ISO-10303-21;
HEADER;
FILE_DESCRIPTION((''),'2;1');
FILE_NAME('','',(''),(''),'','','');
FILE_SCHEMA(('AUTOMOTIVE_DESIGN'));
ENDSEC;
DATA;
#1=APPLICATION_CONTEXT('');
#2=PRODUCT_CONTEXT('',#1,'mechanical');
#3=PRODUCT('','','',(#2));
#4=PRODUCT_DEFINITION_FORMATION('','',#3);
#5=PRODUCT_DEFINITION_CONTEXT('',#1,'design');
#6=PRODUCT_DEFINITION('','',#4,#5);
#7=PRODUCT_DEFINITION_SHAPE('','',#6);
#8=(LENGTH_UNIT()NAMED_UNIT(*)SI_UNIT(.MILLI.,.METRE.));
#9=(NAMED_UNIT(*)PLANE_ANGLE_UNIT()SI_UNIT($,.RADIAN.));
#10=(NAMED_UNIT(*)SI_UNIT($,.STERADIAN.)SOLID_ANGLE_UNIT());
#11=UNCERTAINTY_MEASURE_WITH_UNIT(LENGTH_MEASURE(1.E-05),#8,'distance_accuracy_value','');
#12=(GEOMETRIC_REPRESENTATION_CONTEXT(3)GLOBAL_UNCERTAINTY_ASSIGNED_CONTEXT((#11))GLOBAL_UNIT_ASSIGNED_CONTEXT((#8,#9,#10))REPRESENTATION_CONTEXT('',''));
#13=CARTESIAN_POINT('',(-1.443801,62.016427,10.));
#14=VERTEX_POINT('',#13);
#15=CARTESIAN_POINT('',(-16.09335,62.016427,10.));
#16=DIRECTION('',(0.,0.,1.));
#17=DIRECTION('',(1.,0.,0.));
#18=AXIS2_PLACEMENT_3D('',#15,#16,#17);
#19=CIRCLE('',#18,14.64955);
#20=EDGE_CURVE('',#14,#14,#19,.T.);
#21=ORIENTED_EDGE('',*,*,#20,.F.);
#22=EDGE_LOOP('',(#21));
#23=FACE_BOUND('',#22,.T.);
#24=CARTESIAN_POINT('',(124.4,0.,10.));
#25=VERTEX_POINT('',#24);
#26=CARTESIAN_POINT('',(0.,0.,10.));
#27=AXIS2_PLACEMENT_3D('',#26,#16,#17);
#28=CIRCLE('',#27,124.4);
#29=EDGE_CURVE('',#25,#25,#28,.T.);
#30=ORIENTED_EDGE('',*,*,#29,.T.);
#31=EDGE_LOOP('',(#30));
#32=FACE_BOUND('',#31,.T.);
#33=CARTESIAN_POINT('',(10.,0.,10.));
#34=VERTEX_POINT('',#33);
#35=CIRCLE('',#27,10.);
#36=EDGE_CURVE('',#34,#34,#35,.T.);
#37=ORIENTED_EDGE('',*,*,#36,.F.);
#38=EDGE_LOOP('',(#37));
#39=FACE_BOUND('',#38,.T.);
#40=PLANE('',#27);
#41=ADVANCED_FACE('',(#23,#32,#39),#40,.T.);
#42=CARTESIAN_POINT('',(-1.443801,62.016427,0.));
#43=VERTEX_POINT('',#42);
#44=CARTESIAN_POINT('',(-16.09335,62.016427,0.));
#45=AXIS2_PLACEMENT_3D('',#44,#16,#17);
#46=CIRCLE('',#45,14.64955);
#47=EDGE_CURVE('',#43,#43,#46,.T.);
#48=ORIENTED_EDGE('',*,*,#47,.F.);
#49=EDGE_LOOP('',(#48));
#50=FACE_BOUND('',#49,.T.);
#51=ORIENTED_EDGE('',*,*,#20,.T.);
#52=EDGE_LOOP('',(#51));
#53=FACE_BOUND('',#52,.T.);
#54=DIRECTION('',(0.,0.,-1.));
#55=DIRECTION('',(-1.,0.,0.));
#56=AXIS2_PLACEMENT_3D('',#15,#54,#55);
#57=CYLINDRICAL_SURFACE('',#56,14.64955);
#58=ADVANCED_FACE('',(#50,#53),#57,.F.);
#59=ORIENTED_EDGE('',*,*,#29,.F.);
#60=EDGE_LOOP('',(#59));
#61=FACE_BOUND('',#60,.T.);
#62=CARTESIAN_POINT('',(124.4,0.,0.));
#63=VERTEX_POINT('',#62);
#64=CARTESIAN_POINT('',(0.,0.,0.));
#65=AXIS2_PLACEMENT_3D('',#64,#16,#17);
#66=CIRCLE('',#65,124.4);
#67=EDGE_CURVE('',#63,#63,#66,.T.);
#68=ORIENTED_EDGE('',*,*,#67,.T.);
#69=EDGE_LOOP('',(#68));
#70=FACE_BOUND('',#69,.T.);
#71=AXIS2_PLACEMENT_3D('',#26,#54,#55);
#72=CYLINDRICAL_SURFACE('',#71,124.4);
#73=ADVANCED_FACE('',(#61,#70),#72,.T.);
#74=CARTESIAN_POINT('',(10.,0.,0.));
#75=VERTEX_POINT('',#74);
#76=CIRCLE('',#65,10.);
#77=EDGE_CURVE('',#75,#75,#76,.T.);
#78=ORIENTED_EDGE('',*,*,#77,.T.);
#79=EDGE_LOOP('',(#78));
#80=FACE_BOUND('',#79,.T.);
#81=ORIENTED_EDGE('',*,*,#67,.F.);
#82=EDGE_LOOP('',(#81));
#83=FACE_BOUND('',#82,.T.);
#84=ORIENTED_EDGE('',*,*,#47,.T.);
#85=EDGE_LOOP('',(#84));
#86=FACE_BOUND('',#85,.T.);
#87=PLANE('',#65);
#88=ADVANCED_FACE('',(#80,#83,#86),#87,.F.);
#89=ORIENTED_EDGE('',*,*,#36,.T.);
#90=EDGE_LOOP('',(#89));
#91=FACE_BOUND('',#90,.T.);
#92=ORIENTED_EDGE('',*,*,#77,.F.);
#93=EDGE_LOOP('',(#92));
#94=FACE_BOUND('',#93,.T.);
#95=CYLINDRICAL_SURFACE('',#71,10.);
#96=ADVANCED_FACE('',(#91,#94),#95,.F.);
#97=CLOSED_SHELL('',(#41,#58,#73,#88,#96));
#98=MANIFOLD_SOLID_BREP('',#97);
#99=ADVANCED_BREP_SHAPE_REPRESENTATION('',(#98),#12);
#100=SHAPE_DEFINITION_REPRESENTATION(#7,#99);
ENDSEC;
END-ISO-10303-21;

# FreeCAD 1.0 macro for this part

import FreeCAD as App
import Part
import Sketcher

V = App.Vector

doc = App.newDocument("Part")
body = doc.addObject("PartDesign::Body", "Body")

sketch1 = body.newObject("Sketcher::SketchObject", "Sketch")
sketch1.AttachmentSupport = (doc.getObject("XY_Plane"), [""])
sketch1.MapMode = "FlatFace"
sketch1.addGeometry([
    Part.Circle(V(0, 0, 0), V(0, 0, 1), 124),
    Part.Circle(V(0, 0, 0), V(0, 0, 1), 10),
    Part.Circle(V(-16, 62, 0), V(0, 0, 1), 15),
], False)
sketch1.addConstraint([
    Sketcher.Constraint("Coincident", 0, 3, -1, 1),
    Sketcher.Constraint("Coincident", 1, 3, -1, 1),
    Sketcher.Constraint("Diameter", 1, 20.0),
    Sketcher.Constraint("Diameter", 0, 248.8),
    Sketcher.Constraint("Diameter", 2, 29.299099),
    Sketcher.Constraint("DistanceX", 2, 3, -1, 1, 16.09335),
    Sketcher.Constraint("DistanceY", -1, 1, 2, 3, 62.016427),
])
pad1 = body.newObject("PartDesign::Pad", "Pad")
pad1.Profile = sketch1
pad1.Length = 10

doc.recompute()
